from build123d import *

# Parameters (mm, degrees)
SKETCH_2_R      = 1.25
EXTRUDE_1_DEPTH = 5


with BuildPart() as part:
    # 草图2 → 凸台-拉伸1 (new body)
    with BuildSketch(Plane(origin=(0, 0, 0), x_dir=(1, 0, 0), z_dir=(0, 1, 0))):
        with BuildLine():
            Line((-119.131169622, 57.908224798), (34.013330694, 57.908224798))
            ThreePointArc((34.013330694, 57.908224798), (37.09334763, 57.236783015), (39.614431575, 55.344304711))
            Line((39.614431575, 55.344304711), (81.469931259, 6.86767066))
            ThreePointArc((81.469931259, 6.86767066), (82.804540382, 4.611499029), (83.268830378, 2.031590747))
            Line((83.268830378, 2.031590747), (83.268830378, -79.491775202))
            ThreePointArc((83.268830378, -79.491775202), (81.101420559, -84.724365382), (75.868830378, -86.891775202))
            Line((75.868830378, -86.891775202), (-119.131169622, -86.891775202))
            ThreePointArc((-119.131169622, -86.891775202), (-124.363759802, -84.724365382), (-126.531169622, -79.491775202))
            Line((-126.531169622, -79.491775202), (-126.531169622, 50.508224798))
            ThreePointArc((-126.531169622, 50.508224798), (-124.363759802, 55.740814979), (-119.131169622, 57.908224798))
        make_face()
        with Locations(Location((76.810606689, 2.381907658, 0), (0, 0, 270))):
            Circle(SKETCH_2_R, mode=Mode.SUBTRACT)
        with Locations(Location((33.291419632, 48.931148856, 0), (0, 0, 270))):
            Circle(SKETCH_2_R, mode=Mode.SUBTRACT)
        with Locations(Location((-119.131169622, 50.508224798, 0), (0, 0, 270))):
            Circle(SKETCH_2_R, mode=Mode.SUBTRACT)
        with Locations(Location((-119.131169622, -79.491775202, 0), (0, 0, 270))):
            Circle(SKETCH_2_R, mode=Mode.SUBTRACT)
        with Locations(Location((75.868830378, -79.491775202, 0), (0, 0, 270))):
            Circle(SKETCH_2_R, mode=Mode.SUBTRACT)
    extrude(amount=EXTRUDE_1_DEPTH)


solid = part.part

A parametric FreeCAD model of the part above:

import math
import FreeCAD as App
import Part
import Sketcher

doc = App.newDocument("Part")
params = doc.addObject("Spreadsheet::Sheet", "Params")
for row, (alias, value) in enumerate([
    ("sketch1_diameter", "2.5 mm"),
    ("sketch1_radius", "7.4 mm"),
    ("sketch1_width", "195 mm"),
    ("sketch1_height", "130 mm"),
    ("pad1_length", "5 mm"),
], start=1):
    params.set(f"A{row}", alias)
    params.set(f"B{row}", "=" + value)
    params.setAlias(f"B{row}", alias)

body = doc.addObject("PartDesign::Body", "Body")

# Sketch on XZ plane
sketch1 = body.newObject("Sketcher::SketchObject", "Sketch")
sketch1.AttachmentSupport = (doc.getObject("XZ_Plane"), [""])
sketch1.MapMode = "FlatFace"
sketch1.addGeometry([
    Part.LineSegment(App.Vector(34, -57.9, 0), App.Vector(-119.1, -57.9, 0)),  # 0
    Part.ArcOfCircle(Part.Circle(App.Vector(-119.1, -50.5, 0), App.Vector(0, 0, 1), 7.4), math.radians(-180), math.radians(-90)),  # 1
    Part.LineSegment(App.Vector(-126.5, -50.5, 0), App.Vector(-126.5, 79.5, 0)),  # 2
    Part.ArcOfCircle(Part.Circle(App.Vector(-119.1, 79.5, 0), App.Vector(0, 0, 1), 7.4), math.radians(90), math.radians(180)),  # 3
    Part.LineSegment(App.Vector(-119.1, 86.9, 0), App.Vector(75.9, 86.9, 0)),  # 4
    Part.ArcOfCircle(Part.Circle(App.Vector(75.9, 79.5, 0), App.Vector(0, 0, 1), 7.4), math.radians(0), math.radians(90)),  # 5
    Part.LineSegment(App.Vector(83.3, 79.5, 0), App.Vector(83.3, -2, 0)),  # 6
    Part.ArcOfCircle(Part.Circle(App.Vector(75.9, -2, 0), App.Vector(0, 0, 1), 7.4), math.radians(-41), math.radians(0)),  # 7
    Part.LineSegment(App.Vector(81.5, -6.9, 0), App.Vector(39.6, -55.3, 0)),  # 8
    Part.ArcOfCircle(Part.Circle(App.Vector(34, -50.5, 0), App.Vector(0, 0, 1), 7.4), math.radians(-90), math.radians(-41)),  # 9
    Part.Circle(App.Vector(75.9, 79.5, 0), App.Vector(0, 0, 1), 1.2),  # 10
    Part.Circle(App.Vector(-119.1, 79.5, 0), App.Vector(0, 0, 1), 1.2),  # 11
    Part.Circle(App.Vector(76.8, -2.4, 0), App.Vector(0, 0, 1), 1.2),  # 12
    Part.Circle(App.Vector(33.3, -48.9, 0), App.Vector(0, 0, 1), 1.2),  # 13
    Part.Circle(App.Vector(-119.1, -50.5, 0), App.Vector(0, 0, 1), 1.2),  # 14
], False)
sketch1.addConstraint([
    Sketcher.Constraint("Tangent", 0, 2, 1, 2),
    Sketcher.Constraint("Tangent", 1, 1, 2, 1),
    Sketcher.Constraint("Tangent", 2, 2, 3, 2),
    Sketcher.Constraint("Tangent", 3, 1, 4, 1),
    Sketcher.Constraint("Tangent", 4, 2, 5, 2),
    Sketcher.Constraint("Tangent", 5, 1, 6, 1),
    Sketcher.Constraint("Tangent", 6, 2, 7, 2),
    Sketcher.Constraint("Tangent", 7, 1, 8, 1),
    Sketcher.Constraint("Tangent", 8, 2, 9, 2),
    Sketcher.Constraint("Tangent", 9, 1, 0, 1),
    Sketcher.Constraint("Horizontal", 0),
    Sketcher.Constraint("Vertical", 2),
    Sketcher.Constraint("Horizontal", 4),
    Sketcher.Constraint("Vertical", 6),
    Sketcher.Constraint("Coincident", 10, 3, 5, 3),
    Sketcher.Constraint("Coincident", 11, 3, 3, 3),
    Sketcher.Constraint("Coincident", 14, 3, 1, 3),
    Sketcher.Constraint("Equal", 1, 3),
    Sketcher.Constraint("Equal", 3, 5),
    Sketcher.Constraint("Equal", 5, 7),
    Sketcher.Constraint("Equal", 7, 9),
    Sketcher.Constraint("Equal", 10, 11),
    Sketcher.Constraint("Equal", 11, 12),
    Sketcher.Constraint("Equal", 12, 13),
    Sketcher.Constraint("Equal", 13, 14),
    Sketcher.Constraint("Diameter", 10, 2.5),
    Sketcher.Constraint("Radius", 1, 7.4),
    Sketcher.Constraint("DistanceX", 4, 1, 4, 2, 195.0),
    Sketcher.Constraint("DistanceY", 2, 1, 2, 2, 130.0),
    Sketcher.Constraint("DistanceX", 0, 2, 0, 1, 153.1445),
    Sketcher.Constraint("DistanceX", 7, 1, 6, 2, 1.798899),
    Sketcher.Constraint("DistanceX", 1, 3, -1, 1, 119.13117),
    Sketcher.Constraint("DistanceY", 7, 3, -1, 1, 2.031591),
    Sketcher.Constraint("DistanceX", -1, 1, 13, 3, 33.29142),
    Sketcher.Constraint("DistanceY", 13, 3, -1, 1, 48.931149),
    Sketcher.Constraint("DistanceY", 13, 3, 12, 3, 46.549241),
    Sketcher.Constraint("DistanceX", -1, 1, 12, 3, 76.810607),
])
sketch1.setExpression("Constraints[25]", "Params.sketch1_diameter")
sketch1.setExpression("Constraints[26]", "Params.sketch1_radius")
sketch1.setExpression("Constraints[27]", "Params.sketch1_width")
sketch1.setExpression("Constraints[28]", "Params.sketch1_height")
pad1 = body.newObject("PartDesign::Pad", "Pad")
pad1.Profile = sketch1
pad1.setExpression("Length", "Params.pad1_length")
pad1.Reversed = True

doc.recompute()
